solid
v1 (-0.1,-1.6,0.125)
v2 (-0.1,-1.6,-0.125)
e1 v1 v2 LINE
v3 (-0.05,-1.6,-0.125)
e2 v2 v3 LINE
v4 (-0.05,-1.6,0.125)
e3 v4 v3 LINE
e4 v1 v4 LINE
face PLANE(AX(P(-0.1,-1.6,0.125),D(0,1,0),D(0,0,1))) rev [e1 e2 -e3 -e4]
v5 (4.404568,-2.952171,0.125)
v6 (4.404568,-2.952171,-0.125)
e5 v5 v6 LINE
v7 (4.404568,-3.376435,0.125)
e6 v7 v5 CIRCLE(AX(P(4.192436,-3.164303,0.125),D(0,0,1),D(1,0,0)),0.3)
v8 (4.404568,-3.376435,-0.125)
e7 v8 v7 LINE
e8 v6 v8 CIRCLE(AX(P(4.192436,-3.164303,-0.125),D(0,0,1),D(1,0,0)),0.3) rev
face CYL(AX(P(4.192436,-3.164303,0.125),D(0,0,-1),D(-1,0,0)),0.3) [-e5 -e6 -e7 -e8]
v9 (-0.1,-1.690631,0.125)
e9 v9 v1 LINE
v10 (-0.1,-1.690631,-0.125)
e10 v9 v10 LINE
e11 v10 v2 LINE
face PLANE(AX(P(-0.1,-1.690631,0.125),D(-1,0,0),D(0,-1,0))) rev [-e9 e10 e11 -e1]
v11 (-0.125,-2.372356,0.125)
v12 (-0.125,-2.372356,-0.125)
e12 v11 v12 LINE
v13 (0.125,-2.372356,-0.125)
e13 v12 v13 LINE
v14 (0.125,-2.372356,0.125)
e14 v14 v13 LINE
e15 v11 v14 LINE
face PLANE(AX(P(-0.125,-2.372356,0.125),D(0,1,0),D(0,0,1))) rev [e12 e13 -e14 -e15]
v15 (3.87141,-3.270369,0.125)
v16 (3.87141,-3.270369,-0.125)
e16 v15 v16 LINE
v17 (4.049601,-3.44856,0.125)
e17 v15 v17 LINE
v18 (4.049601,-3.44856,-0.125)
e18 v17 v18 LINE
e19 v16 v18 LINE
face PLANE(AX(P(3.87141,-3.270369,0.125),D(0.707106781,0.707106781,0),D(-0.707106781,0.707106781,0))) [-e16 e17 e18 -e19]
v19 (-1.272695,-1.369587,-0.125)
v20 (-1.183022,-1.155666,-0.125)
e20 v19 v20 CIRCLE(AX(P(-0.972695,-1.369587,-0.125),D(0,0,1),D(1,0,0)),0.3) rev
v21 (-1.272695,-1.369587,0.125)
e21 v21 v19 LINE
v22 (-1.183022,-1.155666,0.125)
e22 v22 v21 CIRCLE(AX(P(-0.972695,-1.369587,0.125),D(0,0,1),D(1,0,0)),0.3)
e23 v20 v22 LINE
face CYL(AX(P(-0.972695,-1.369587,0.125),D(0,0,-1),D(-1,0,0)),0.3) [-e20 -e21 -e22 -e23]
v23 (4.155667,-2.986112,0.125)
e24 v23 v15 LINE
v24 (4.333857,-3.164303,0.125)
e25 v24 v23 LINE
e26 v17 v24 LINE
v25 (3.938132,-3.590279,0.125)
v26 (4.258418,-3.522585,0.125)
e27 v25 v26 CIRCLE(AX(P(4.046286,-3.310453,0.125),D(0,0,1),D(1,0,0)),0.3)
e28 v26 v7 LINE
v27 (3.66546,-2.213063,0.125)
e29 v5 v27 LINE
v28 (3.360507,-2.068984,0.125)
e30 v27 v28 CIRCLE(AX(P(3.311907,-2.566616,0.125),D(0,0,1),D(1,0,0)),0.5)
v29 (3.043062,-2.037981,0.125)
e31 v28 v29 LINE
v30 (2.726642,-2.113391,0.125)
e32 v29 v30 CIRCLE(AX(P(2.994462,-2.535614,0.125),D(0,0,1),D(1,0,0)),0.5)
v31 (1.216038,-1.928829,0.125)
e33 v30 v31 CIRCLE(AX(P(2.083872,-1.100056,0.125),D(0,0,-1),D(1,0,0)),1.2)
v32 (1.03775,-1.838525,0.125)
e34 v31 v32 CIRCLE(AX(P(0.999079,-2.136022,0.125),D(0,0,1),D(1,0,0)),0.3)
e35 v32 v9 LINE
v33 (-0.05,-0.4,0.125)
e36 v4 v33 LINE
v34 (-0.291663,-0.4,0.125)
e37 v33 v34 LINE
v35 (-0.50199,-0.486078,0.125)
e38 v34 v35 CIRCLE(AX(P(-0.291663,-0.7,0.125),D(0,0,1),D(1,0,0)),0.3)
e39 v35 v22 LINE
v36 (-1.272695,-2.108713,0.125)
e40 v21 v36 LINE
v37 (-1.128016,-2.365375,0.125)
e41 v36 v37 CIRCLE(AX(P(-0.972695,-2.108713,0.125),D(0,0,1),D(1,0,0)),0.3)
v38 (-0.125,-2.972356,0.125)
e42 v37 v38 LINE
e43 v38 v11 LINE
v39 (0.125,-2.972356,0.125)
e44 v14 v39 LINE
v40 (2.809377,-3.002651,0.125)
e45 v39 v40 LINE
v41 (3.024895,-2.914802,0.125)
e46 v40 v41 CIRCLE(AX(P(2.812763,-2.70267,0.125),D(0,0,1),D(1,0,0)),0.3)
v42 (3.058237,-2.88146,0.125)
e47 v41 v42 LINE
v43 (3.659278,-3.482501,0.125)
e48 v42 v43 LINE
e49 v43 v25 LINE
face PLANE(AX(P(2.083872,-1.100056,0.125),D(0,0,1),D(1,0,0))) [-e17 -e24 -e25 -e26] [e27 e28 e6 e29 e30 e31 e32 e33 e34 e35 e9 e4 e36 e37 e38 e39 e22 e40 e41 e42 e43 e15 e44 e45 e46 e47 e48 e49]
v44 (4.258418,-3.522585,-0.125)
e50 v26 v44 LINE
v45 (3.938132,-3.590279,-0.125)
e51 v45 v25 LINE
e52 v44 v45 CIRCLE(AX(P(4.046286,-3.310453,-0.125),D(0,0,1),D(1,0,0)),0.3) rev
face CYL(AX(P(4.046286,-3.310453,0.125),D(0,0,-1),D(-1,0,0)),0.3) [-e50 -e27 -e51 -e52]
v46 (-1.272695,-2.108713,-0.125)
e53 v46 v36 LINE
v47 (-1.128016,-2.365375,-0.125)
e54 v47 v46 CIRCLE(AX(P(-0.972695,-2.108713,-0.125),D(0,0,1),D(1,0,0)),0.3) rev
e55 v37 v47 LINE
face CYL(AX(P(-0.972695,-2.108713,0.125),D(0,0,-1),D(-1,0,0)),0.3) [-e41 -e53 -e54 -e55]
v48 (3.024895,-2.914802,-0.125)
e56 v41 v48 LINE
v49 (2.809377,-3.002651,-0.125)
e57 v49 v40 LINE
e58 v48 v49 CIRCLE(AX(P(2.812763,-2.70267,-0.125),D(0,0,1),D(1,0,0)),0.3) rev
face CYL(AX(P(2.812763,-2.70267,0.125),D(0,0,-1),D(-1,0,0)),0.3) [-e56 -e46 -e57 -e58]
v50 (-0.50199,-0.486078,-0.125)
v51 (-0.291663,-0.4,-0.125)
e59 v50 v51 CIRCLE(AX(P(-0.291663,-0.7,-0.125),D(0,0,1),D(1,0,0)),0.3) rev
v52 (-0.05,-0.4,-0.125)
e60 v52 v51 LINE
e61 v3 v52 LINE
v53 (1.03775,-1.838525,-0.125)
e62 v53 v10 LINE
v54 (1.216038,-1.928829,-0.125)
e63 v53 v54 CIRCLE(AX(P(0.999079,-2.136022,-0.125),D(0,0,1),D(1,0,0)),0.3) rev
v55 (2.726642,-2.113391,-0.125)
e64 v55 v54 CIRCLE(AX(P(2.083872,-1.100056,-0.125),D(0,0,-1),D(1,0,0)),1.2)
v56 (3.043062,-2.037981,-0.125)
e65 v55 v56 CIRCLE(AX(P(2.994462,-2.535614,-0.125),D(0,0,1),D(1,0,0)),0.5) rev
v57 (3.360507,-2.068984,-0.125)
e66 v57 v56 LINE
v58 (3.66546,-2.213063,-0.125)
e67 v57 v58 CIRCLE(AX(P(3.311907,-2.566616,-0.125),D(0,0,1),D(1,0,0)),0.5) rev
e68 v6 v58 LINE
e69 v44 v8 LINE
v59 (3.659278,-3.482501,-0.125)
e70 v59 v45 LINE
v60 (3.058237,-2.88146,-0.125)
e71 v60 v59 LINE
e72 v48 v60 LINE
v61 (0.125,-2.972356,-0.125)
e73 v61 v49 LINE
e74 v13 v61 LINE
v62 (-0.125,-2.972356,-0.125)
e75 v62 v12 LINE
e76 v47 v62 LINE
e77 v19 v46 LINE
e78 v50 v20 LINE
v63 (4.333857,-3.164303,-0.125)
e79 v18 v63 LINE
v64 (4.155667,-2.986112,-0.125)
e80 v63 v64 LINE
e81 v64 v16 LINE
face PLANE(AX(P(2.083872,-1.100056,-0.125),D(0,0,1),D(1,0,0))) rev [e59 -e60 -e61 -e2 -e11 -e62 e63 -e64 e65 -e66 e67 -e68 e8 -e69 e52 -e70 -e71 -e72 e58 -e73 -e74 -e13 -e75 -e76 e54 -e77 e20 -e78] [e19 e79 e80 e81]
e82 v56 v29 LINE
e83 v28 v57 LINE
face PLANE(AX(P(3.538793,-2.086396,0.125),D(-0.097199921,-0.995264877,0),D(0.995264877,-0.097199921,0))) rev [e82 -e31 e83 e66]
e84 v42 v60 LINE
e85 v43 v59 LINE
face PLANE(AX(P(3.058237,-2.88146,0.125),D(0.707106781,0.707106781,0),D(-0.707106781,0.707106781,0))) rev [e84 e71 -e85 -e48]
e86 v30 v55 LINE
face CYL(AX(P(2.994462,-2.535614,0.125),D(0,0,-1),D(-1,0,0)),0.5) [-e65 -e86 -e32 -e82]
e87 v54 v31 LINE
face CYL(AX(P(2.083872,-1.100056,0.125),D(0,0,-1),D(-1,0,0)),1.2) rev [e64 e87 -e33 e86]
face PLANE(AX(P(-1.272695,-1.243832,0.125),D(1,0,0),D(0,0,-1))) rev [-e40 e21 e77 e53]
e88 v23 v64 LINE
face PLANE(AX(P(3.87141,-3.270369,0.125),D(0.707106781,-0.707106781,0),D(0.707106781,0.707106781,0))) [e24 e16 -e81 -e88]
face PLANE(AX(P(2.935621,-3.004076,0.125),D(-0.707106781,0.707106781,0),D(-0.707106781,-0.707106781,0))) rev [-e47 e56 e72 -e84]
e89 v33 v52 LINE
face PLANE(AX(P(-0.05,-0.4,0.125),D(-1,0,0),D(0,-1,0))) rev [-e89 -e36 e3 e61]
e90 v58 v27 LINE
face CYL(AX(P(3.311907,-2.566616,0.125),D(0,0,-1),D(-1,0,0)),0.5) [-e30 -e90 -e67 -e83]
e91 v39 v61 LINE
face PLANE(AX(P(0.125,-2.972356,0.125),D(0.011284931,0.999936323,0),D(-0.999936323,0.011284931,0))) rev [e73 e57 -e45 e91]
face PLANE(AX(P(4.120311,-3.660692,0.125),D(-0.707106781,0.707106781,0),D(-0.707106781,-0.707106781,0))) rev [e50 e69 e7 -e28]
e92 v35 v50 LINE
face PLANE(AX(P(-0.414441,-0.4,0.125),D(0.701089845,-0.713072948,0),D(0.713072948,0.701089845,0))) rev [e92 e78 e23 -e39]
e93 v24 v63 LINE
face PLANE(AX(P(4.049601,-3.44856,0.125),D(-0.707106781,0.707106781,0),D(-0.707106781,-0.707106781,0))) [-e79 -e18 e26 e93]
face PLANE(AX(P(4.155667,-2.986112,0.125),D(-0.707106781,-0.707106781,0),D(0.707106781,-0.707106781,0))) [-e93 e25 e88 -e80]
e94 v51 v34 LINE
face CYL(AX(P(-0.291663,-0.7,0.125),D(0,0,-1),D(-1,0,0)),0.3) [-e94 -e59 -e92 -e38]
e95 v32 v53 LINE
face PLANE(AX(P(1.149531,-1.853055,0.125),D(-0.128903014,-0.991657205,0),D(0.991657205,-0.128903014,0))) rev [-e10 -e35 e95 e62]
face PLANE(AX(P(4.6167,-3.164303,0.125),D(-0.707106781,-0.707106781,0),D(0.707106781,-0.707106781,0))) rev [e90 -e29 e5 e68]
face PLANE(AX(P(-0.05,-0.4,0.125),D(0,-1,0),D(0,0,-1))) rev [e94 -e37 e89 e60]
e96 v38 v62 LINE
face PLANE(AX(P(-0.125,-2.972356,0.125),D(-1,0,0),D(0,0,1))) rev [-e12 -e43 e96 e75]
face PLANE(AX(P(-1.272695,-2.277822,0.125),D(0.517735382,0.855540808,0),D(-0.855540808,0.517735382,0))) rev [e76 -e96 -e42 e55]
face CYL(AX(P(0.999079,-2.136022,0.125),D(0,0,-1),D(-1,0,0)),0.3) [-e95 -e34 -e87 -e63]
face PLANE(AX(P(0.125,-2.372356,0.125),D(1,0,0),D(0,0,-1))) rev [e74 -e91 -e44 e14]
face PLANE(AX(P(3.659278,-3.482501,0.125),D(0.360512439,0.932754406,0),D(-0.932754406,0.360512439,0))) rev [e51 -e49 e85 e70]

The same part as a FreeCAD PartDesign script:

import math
import FreeCAD as App
import Part
import Sketcher
from FreeCAD import Vector
Q = App.Units.Quantity


def edges_at(feature, points):
    """Names of the edges that pass closest to the given points."""
    edges = feature.Shape.Edges
    near = lambda p: min(range(len(edges)), key=lambda i: edges[i].distToShape(Part.Vertex(*p))[0])
    return sorted({f"Edge{near(p) + 1}" for p in points})


def add_polygon(sketch, points):
    """Adds a closed chain of lines whose ends are joined by coincident constraints."""
    first, n = sketch.GeometryCount, len(points)
    for a, b in zip(points, points[1:] + points[:1]):
        sketch.addGeometry(Part.LineSegment(App.Vector(*a, 0), App.Vector(*b, 0)), False)
    for i in range(n):
        sketch.addConstraint(Sketcher.Constraint("Coincident", first + i, 2, first + (i + 1) % n, 1))

doc = App.newDocument("Part")
body = doc.addObject("PartDesign::Body", "Body")

# Sketch on XY plane
sketch1 = body.newObject("Sketcher::SketchObject", "Sketch")
sketch1.AttachmentSupport = (doc.getObject("XY_Plane"), [""])
sketch1.MapMode = "FlatFace"
sketch1.addGeometry(Part.LineSegment(Vector(-0.05, -1.6, 0), Vector(-0.05, -0.4, 0)), False)  # 0
sketch1.addGeometry(Part.LineSegment(Vector(-0.05, -0.4, 0), Vector(-0.414441, -0.4, 0)), False)  # 1
sketch1.addGeometry(Part.LineSegment(Vector(-0.414441, -0.4, 0), Vector(-1.272695, -1.243832, 0)), False)  # 2
sketch1.addGeometry(Part.LineSegment(Vector(-1.272695, -1.243832, 0), Vector(-1.272695, -2.277822, 0)), False)  # 3
sketch1.addGeometry(Part.LineSegment(Vector(-1.272695, -2.277822, 0), Vector(-0.125, -2.972356, 0)), False)  # 4
sketch1.addGeometry(Part.LineSegment(Vector(-0.125, -2.972356, 0), Vector(-0.125, -2.372356, 0)), False)  # 5
sketch1.addGeometry(Part.LineSegment(Vector(-0.125, -2.372356, 0), Vector(0.125, -2.372356, 0)), False)  # 6
sketch1.addGeometry(Part.LineSegment(Vector(0.125, -2.372356, 0), Vector(0.125, -2.972356, 0)), False)  # 7
sketch1.addGeometry(Part.LineSegment(Vector(0.125, -2.972356, 0), Vector(2.935621, -3.004076, 0)), False)  # 8
sketch1.addGeometry(Part.LineSegment(Vector(2.935621, -3.004076, 0), Vector(3.058237, -2.88146, 0)), False)  # 9
sketch1.addGeometry(Part.LineSegment(Vector(3.058237, -2.88146, 0), Vector(3.659278, -3.482501, 0)), False)  # 10
sketch1.addGeometry(Part.LineSegment(Vector(3.659278, -3.482501, 0), Vector(4.120311, -3.660692, 0)), False)  # 11
sketch1.addGeometry(Part.LineSegment(Vector(4.120311, -3.660692, 0), Vector(4.6167, -3.164303, 0)), False)  # 12
sketch1.addGeometry(Part.LineSegment(Vector(4.6167, -3.164303, 0), Vector(3.538793, -2.086396, 0)), False)  # 13
sketch1.addGeometry(Part.LineSegment(Vector(3.538793, -2.086396, 0), Vector(2.854869, -2.019602, 0)), False)  # 14
sketch1.addGeometry(Part.ArcOfCircle(Part.Circle(Vector(2.083872, -1.100056, 0), Vector(0, 0, 1), 1.2), math.radians(-141.134192), math.radians(-50.021712)), False)  # 15
sketch1.addGeometry(Part.LineSegment(Vector(1.149531, -1.853055, 0), Vector(-0.1, -1.690631, 0)), False)  # 16
sketch1.addGeometry(Part.LineSegment(Vector(-0.1, -1.690631, 0), Vector(-0.1, -1.6, 0)), False)  # 17
sketch1.addGeometry(Part.LineSegment(Vector(-0.1, -1.6, 0), Vector(-0.05, -1.6, 0)), False)  # 18
add_polygon(sketch1, [(3.87141, -3.270369), (4.155667, -2.986112), (4.333857, -3.164303), (4.049601, -3.44856)])  # lines 19-22
sketch1.addConstraint(Sketcher.Constraint("Coincident", 0, 2, 1, 1))
sketch1.addConstraint(Sketcher.Constraint("Coincident", 1, 2, 2, 1))
sketch1.addConstraint(Sketcher.Constraint("Coincident", 2, 2, 3, 1))
sketch1.addConstraint(Sketcher.Constraint("Coincident", 3, 2, 4, 1))
sketch1.addConstraint(Sketcher.Constraint("Coincident", 4, 2, 5, 1))
sketch1.addConstraint(Sketcher.Constraint("Coincident", 5, 2, 6, 1))
sketch1.addConstraint(Sketcher.Constraint("Coincident", 6, 2, 7, 1))
sketch1.addConstraint(Sketcher.Constraint("Coincident", 7, 2, 8, 1))
sketch1.addConstraint(Sketcher.Constraint("Coincident", 8, 2, 9, 1))
sketch1.addConstraint(Sketcher.Constraint("Coincident", 9, 2, 10, 1))
sketch1.addConstraint(Sketcher.Constraint("Coincident", 10, 2, 11, 1))
sketch1.addConstraint(Sketcher.Constraint("Coincident", 11, 2, 12, 1))
sketch1.addConstraint(Sketcher.Constraint("Coincident", 12, 2, 13, 1))
sketch1.addConstraint(Sketcher.Constraint("Coincident", 13, 2, 14, 1))
sketch1.addConstraint(Sketcher.Constraint("Coincident", 14, 2, 15, 2))
sketch1.addConstraint(Sketcher.Constraint("Coincident", 15, 1, 16, 1))
sketch1.addConstraint(Sketcher.Constraint("Coincident", 16, 2, 17, 1))
sketch1.addConstraint(Sketcher.Constraint("Coincident", 17, 2, 18, 1))
sketch1.addConstraint(Sketcher.Constraint("Coincident", 18, 2, 0, 1))
sketch1.addConstraint(Sketcher.Constraint("Vertical", 0))
sketch1.addConstraint(Sketcher.Constraint("Horizontal", 1))
sketch1.addConstraint(Sketcher.Constraint("Vertical", 3))
sketch1.addConstraint(Sketcher.Constraint("Vertical", 5))
sketch1.addConstraint(Sketcher.Constraint("Horizontal", 6))
sketch1.addConstraint(Sketcher.Constraint("Vertical", 7))
sketch1.addConstraint(Sketcher.Constraint("Vertical", 17))
sketch1.addConstraint(Sketcher.Constraint("Horizontal", 18))
sketch1.addConstraint(Sketcher.Constraint("Symmetric", 4, 2, 7, 2, -2))
sketch1.addConstraint(Sketcher.Constraint("Perpendicular", 9, 10))
sketch1.addConstraint(Sketcher.Constraint("Perpendicular", 10, 12))
sketch1.addConstraint(Sketcher.Constraint("Perpendicular", 12, 13))
sketch1.addConstraint(Sketcher.Constraint("Perpendicular", 13, 19))
sketch1.addConstraint(Sketcher.Constraint("Perpendicular", 19, 20))
sketch1.addConstraint(Sketcher.Constraint("Perpendicular", 20, 21))
sketch1.addConstraint(Sketcher.Constraint("Perpendicular", 21, 22))
sketch1.addConstraint(Sketcher.Constraint("Horizontal", 12, 2, 20, 2))
sketch1.addConstraint(Sketcher.Constraint("Radius", 15, 1.2))
sketch1.addConstraint(Sketcher.Constraint("Angle", 9, Q("45 deg")))
sketch1.addConstraint(Sketcher.Constraint("DistanceY", 0, 1, 0, 2, 1.2))
sketch1.addConstraint(Sketcher.Constraint("DistanceY", 5, 1, 5, 2, 0.6))
sketch1.addConstraint(Sketcher.Constraint("DistanceX", 6, 1, 6, 2, 0.25))
sketch1.addConstraint(Sketcher.Constraint("DistanceX", 18, 1, 18, 2, 0.05))
sketch1.addConstraint(Sketcher.Constraint("DistanceY", 0, 2, -1, 1, 0.4))
sketch1.addConstraint(Sketcher.Constraint("DistanceX", 16, 2, -1, 1, 0.1))
sketch1.addConstraint(Sketcher.Constraint("Distance", 10, 0.85))
sketch1.addConstraint(Sketcher.Constraint("Distance", 12, 0.702))
sketch1.addConstraint(Sketcher.Constraint("Distance", 19, 0.402))
sketch1.addConstraint(Sketcher.Constraint("Distance", 20, 0.252))
sketch1.addConstraint(Sketcher.Constraint("DistanceY", 15, 1, 15, 3, 0.752998))
sketch1.addConstraint(Sketcher.Constraint("Distance", 2, 1.2036))
sketch1.addConstraint(Sketcher.Constraint("Distance", 8, 2.8108))
sketch1.addConstraint(Sketcher.Constraint("DistanceX", 1, 2, 1, 1, 0.364441))
sketch1.addConstraint(Sketcher.Constraint("DistanceY", 3, 2, 3, 1, 1.03399))
sketch1.addConstraint(Sketcher.Constraint("DistanceY", 17, 1, 17, 2, 0.090631))
sketch1.addConstraint(Sketcher.Constraint("DistanceY", 10, 2, -1, 1, 3.482501))
sketch1.addConstraint(Sketcher.Constraint("DistanceX", -1, 1, 12, 2, 4.6167))
sketch1.addConstraint(Sketcher.Constraint("DistanceX", -1, 1, 21, 2, 4.049601))
sketch1.addConstraint(Sketcher.Constraint("DistanceY", 4, 2, 15, 3, 1.8723))
sketch1.addConstraint(Sketcher.Constraint("DistanceY", 10, 2, 12, 2, 0.318198))
sketch1.addConstraint(Sketcher.Constraint("DistanceY", 10, 2, 14, 2, 1.462899))
sketch1.addConstraint(Sketcher.Constraint("DistanceY", 16, 2, 2, 2, 0.4468))
sketch1.addConstraint(Sketcher.Constraint("Distance", 11, 0.494271))
sketch1.addConstraint(Sketcher.Constraint("Distance", 13, 1.524391))
sketch1.addConstraint(Sketcher.Constraint("Distance", 14, 0.687178))
sketch1.addConstraint(Sketcher.Constraint("DistanceX", -1, 1, 8, 2, 2.935621))
pad1 = body.newObject("PartDesign::Pad", "Pad")
pad1.Profile = sketch1
pad1.Length = 0.25
pad1.Midplane = True
doc.recompute()

fillet = body.newObject("PartDesign::Fillet", "Fillet")
fillet.Base = (pad1, edges_at(pad1, [
    (-1.273, -1.244, 0),
    (-0.414, -0.4, 0),
    (1.15, -1.853, 0),
    (4.617, -3.164, 0),
    (4.12, -3.661, 0),
    (2.936, -3.004, 0),
    (-1.273, -2.278, 0),
]))
fillet.Radius = 0.3
doc.recompute()

fillet2 = body.newObject("PartDesign::Fillet", "Fillet001")
fillet2.Base = (fillet, edges_at(fillet, [(2.855, -2.02, 0), (3.539, -2.086, 0)]))
fillet2.Radius = 0.5

doc.recompute()
